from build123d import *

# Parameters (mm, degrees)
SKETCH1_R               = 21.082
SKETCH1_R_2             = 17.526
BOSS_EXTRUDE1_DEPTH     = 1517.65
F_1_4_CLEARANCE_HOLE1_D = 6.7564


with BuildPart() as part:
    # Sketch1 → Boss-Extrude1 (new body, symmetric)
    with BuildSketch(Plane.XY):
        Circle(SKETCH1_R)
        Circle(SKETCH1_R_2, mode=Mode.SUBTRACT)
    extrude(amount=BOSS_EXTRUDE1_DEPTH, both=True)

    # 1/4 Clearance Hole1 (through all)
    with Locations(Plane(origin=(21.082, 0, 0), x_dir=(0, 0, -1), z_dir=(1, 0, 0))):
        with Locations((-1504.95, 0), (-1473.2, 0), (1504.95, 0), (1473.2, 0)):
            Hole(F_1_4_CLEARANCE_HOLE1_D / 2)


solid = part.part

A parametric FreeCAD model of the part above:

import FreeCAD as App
import Part
import Sketcher

V = App.Vector
Q = App.Units.Quantity

doc = App.newDocument("Part")
params = doc.addObject("Spreadsheet::Sheet", "Params")
for row, (alias, value) in enumerate([
    ("sketch1_diameter", "1.66 in"),
    ("sketch1_diameter2", "1.38 in"),
    ("pad1_length", "119.5 in"),
    ("sketch2_diameter", "0.266 in"),
    ("hole_diameter", "0.266 in"),
], start=1):
    params.set(f"A{row}", alias)
    params.set(f"B{row}", "=" + value)
    params.setAlias(f"B{row}", alias)

body = doc.addObject("PartDesign::Body", "Body")

# Sketch on XY plane
sketch1 = body.newObject("Sketcher::SketchObject", "Sketch")
sketch1.AttachmentSupport = (doc.getObject("XY_Plane"), [""])
sketch1.MapMode = "FlatFace"
sketch1.addGeometry(Part.Circle(V(0, 0, 0), V(0, 0, 1), 21.082), False)
sketch1.addGeometry(Part.Circle(V(0, 0, 0), V(0, 0, 1), 17.526), False)
sketch1.addConstraint(Sketcher.Constraint("Coincident", 0, 3, -1, 1))
sketch1.addConstraint(Sketcher.Constraint("Coincident", 1, 3, -1, 1))
sketch1.addConstraint(Sketcher.Constraint("Diameter", 0, Q("1.66 in")))
sketch1.addConstraint(Sketcher.Constraint("Diameter", 1, Q("1.38 in")))
sketch1.setExpression("Constraints[2]", "Params.sketch1_diameter")
sketch1.setExpression("Constraints[3]", "Params.sketch1_diameter2")
pad1 = body.newObject("PartDesign::Pad", "Pad")
pad1.Profile = sketch1
pad1.setExpression("Length", "Params.pad1_length")
pad1.Midplane = True

# Sketch on YZ plane
sketch2 = body.newObject("Sketcher::SketchObject", "Sketch001")
sketch2.AttachmentSupport = (doc.getObject("YZ_Plane"), [""])
sketch2.MapMode = "FlatFace"
sketch2.AttachmentOffset = App.Placement(V(0, 0, 0.83 * 25.4), App.Rotation())
sketch2.addGeometry(Part.Circle(V(0, 1504.95, 0), V(0, 0, 1), 3.3782), False)
sketch2.addGeometry(Part.Circle(V(0, 1473.2, 0), V(0, 0, 1), 3.3782), False)
sketch2.addGeometry(Part.Circle(V(0, -1504.95, 0), V(0, 0, 1), 3.3782), False)
sketch2.addGeometry(Part.Circle(V(0, -1473.2, 0), V(0, 0, 1), 3.3782), False)
sketch2.addConstraint(Sketcher.Constraint("Equal", 0, 1))
sketch2.addConstraint(Sketcher.Constraint("Equal", 1, 2))
sketch2.addConstraint(Sketcher.Constraint("Equal", 2, 3))
sketch2.addConstraint(Sketcher.Constraint("Symmetric", 0, 3, 2, 3, -1, 1))
sketch2.addConstraint(Sketcher.Constraint("Symmetric", 1, 3, 3, 3, -1, 1))
sketch2.addConstraint(Sketcher.Constraint("PointOnObject", 0, 3, -2))
sketch2.addConstraint(Sketcher.Constraint("PointOnObject", 1, 3, -2))
sketch2.addConstraint(Sketcher.Constraint("Diameter", 0, Q("0.266 in")))
sketch2.addConstraint(Sketcher.Constraint("DistanceY", -1, 1, 1, 3, Q("58 in")))
sketch2.addConstraint(Sketcher.Constraint("DistanceY", 2, 3, 0, 3, Q("118.5 in")))
sketch2.setExpression("Constraints[7]", "Params.sketch2_diameter")
doc.recompute()
hole = body.newObject("PartDesign::Hole", "Hole")
hole.Profile = sketch2
hole.ThreadType = "None"
hole.setExpression("Diameter", "Params.hole_diameter")
hole.DepthType = "ThroughAll"

doc.recompute()
